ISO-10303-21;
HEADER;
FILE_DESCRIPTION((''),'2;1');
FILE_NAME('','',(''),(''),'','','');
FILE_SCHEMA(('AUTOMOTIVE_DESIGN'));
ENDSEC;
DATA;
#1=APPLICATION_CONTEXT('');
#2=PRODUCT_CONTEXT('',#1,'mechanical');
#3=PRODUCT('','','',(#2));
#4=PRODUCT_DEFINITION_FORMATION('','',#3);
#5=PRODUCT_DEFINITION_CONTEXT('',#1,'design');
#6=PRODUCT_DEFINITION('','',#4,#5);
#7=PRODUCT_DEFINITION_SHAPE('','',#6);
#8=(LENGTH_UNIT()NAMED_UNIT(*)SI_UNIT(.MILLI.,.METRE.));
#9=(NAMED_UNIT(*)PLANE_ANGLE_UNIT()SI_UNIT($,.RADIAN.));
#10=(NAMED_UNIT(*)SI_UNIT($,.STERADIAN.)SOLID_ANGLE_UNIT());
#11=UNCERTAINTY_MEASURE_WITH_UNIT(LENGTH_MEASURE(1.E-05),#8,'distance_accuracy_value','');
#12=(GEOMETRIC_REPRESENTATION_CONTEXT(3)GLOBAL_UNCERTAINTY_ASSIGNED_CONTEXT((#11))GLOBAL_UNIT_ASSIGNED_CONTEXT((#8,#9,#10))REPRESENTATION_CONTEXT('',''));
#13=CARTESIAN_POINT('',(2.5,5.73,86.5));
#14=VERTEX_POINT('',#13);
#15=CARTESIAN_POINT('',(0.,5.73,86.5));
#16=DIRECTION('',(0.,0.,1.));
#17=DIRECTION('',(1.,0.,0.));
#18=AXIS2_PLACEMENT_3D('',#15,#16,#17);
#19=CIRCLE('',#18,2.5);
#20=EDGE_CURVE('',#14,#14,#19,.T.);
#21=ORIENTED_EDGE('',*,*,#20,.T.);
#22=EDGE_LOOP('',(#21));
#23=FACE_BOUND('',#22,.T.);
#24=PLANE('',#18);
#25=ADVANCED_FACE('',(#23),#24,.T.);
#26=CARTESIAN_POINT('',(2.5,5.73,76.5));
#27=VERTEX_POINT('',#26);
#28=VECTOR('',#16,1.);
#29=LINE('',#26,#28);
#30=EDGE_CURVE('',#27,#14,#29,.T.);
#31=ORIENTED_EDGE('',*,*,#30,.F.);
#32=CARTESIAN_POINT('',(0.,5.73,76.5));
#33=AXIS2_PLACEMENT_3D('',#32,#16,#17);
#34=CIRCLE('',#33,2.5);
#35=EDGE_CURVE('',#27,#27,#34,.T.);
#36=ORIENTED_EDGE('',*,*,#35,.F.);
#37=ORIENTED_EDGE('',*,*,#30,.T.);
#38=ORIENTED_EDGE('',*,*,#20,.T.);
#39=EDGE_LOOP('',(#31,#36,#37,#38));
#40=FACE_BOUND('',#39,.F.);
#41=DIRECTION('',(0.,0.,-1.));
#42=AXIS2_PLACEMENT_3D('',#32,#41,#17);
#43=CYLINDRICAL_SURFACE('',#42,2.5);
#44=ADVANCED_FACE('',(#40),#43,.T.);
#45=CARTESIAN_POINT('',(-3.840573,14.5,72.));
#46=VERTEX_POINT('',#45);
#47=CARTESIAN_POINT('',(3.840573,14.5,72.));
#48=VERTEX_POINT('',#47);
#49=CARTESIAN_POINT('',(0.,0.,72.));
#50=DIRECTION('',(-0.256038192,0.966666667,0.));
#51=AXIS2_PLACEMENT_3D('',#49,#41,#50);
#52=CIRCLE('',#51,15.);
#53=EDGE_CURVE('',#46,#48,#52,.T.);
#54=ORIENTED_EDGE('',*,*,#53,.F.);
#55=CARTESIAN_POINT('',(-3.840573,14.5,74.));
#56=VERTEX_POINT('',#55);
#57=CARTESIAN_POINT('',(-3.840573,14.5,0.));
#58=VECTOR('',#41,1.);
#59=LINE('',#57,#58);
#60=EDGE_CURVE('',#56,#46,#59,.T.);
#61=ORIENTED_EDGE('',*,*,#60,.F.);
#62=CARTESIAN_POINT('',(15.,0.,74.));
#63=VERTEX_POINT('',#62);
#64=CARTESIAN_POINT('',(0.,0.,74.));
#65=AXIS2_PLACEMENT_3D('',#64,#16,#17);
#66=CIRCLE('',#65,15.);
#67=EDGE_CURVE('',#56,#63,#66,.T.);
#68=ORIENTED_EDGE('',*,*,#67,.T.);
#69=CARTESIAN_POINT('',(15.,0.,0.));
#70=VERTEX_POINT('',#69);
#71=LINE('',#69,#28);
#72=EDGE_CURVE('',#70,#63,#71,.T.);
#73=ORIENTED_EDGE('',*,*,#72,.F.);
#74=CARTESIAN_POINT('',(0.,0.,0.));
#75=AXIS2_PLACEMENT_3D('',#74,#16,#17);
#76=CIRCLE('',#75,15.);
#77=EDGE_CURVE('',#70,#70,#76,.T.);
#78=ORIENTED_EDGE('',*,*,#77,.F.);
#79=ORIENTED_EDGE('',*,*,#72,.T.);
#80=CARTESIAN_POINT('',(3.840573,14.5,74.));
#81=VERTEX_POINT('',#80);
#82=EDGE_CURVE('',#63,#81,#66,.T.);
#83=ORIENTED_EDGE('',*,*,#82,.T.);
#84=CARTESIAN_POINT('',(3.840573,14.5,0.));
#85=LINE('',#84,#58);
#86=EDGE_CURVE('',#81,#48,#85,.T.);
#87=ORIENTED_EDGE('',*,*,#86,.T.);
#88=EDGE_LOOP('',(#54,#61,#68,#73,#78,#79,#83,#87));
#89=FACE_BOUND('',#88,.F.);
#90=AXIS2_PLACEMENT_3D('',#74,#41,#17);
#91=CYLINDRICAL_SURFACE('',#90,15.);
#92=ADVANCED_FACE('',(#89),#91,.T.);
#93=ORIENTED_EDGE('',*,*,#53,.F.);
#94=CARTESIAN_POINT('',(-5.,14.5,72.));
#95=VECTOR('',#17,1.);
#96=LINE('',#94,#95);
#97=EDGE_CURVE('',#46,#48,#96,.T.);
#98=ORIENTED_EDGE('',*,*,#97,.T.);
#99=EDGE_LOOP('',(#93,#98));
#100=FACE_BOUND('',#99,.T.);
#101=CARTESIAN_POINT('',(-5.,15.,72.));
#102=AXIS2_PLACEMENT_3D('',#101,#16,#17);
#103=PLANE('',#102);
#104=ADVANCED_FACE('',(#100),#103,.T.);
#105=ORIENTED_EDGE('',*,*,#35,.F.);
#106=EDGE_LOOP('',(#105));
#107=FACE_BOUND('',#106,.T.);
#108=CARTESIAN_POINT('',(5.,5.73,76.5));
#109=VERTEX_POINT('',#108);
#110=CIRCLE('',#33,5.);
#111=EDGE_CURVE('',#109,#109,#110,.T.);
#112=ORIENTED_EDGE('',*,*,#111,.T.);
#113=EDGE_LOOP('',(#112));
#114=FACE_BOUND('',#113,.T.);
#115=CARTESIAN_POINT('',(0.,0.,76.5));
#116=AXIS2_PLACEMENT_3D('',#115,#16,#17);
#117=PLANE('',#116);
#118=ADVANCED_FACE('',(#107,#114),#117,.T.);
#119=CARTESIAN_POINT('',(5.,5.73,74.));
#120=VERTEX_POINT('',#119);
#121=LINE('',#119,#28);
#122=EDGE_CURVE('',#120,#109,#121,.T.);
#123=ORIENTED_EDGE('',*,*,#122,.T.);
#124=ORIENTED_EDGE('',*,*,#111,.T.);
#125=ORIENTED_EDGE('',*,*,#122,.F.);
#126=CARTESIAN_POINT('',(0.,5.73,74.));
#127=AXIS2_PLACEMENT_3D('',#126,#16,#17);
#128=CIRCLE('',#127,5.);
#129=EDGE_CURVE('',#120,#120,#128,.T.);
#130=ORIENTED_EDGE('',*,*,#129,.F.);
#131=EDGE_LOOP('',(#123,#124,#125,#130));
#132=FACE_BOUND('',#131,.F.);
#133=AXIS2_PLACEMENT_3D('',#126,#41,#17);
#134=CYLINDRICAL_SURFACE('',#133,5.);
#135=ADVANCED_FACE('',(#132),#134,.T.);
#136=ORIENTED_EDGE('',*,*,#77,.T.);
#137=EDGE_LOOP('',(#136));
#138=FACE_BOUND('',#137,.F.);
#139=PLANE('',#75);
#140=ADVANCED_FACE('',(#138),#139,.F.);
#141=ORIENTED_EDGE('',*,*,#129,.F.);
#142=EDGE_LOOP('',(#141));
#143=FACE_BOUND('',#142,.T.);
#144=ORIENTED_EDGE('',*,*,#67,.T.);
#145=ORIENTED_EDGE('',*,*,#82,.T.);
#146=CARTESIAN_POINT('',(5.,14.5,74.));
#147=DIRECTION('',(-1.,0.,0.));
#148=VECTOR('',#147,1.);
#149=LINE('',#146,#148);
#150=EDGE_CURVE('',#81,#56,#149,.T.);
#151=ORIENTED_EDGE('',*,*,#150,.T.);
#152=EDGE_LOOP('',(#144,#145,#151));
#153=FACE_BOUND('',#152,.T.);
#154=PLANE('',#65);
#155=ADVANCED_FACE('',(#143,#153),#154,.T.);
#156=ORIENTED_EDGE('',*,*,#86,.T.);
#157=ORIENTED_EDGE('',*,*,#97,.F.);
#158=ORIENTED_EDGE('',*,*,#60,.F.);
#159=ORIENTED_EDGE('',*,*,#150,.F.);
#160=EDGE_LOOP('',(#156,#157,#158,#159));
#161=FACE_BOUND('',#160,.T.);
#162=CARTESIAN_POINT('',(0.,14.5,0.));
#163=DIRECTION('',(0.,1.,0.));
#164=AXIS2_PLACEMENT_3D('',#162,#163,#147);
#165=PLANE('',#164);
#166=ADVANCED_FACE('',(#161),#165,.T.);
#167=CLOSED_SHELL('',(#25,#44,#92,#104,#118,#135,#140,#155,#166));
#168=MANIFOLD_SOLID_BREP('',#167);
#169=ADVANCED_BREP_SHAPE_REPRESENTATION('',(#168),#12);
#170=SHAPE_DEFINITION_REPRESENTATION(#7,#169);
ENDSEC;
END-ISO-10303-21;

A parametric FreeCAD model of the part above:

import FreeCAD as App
import Part
import Sketcher
from FreeCAD import Vector
Q = App.Units.Quantity

doc = App.newDocument("Part")
body = doc.addObject("PartDesign::Body", "Body")

# Sketch on XY plane
sketch1 = body.newObject("Sketcher::SketchObject", "Sketch")
sketch1.AttachmentSupport = (doc.getObject("XY_Plane"), [""])
sketch1.MapMode = "FlatFace"
sketch1.addGeometry(Part.Circle(Vector(0, 0, 0), Vector(0, 0, 1), 15), False)
sketch1.addConstraint(Sketcher.Constraint("Coincident", 0, 3, -1, 1))
sketch1.addConstraint(Sketcher.Constraint("Diameter", 0, Q("30 mm")))
pad1 = body.newObject("PartDesign::Pad", "Pad")
pad1.Profile = sketch1
pad1.Length = 74

# Sketch on XY plane
sketch2 = body.newObject("Sketcher::SketchObject", "Sketch001")
sketch2.AttachmentSupport = (doc.getObject("XY_Plane"), [""])
sketch2.MapMode = "FlatFace"
sketch2.AttachmentOffset = App.Placement(Vector(0, 0, 74), App.Rotation())
sketch2.addGeometry(Part.Circle(Vector(0, 5.73, 0), Vector(0, 0, 1), 5), False)
sketch2.addConstraint(Sketcher.Constraint("PointOnObject", 0, 3, -2))
sketch2.addConstraint(Sketcher.Constraint("Diameter", 0, Q("10 mm")))
sketch2.addConstraint(Sketcher.Constraint("DistanceY", -1, 1, 0, 3, Q("5.73 mm")))
pad2 = body.newObject("PartDesign::Pad", "Pad001")
pad2.Profile = sketch2
pad2.Length = 2.5

# Sketch on XY plane
sketch3 = body.newObject("Sketcher::SketchObject", "Sketch002")
sketch3.AttachmentSupport = (doc.getObject("XY_Plane"), [""])
sketch3.MapMode = "FlatFace"
sketch3.AttachmentOffset = App.Placement(Vector(0, 0, 76.5), App.Rotation())
sketch3.addGeometry(Part.Circle(Vector(0, 5.73, 0), Vector(0, 0, 1), 2.5), False)
sketch3.addConstraint(Sketcher.Constraint("PointOnObject", 0, 3, -2))
sketch3.addConstraint(Sketcher.Constraint("Diameter", 0, Q("5 mm")))
sketch3.addConstraint(Sketcher.Constraint("DistanceY", -1, 1, 0, 3, Q("5.73 mm")))
pad3 = body.newObject("PartDesign::Pad", "Pad002")
pad3.Profile = sketch3
pad3.Length = 10

# Sketch on XZ plane
sketch4 = body.newObject("Sketcher::SketchObject", "Sketch003")
sketch4.AttachmentSupport = (doc.getObject("XZ_Plane"), [""])
sketch4.MapMode = "FlatFace"
sketch4.AttachmentOffset = App.Placement(Vector(0, 0, -15), App.Rotation())
sketch4.addGeometry(Part.LineSegment(Vector(-5, 74, 0), Vector(5, 74, 0)), False)
sketch4.addGeometry(Part.LineSegment(Vector(5, 74, 0), Vector(5, 72, 0)), False)
sketch4.addGeometry(Part.LineSegment(Vector(5, 72, 0), Vector(-5, 72, 0)), False)
sketch4.addGeometry(Part.LineSegment(Vector(-5, 72, 0), Vector(-5, 74, 0)), False)
sketch4.addConstraint(Sketcher.Constraint("Coincident", 0, 2, 1, 1))
sketch4.addConstraint(Sketcher.Constraint("Coincident", 1, 2, 2, 1))
sketch4.addConstraint(Sketcher.Constraint("Coincident", 2, 2, 3, 1))
sketch4.addConstraint(Sketcher.Constraint("Coincident", 3, 2, 0, 1))
sketch4.addConstraint(Sketcher.Constraint("Horizontal", 0))
sketch4.addConstraint(Sketcher.Constraint("Vertical", 1))
sketch4.addConstraint(Sketcher.Constraint("Horizontal", 2))
sketch4.addConstraint(Sketcher.Constraint("Vertical", 3))
sketch4.addConstraint(Sketcher.Constraint("DistanceX", 0, 1, 0, 2, Q("10 mm")))
sketch4.addConstraint(Sketcher.Constraint("DistanceY", 1, 2, 1, 1, Q("2 mm")))
sketch4.addConstraint(Sketcher.Constraint("DistanceX", -1, 1, 0, 2, Q("5 mm")))
sketch4.addConstraint(Sketcher.Constraint("DistanceY", -1, 1, 0, 2, Q("74 mm")))
pocket1 = body.newObject("PartDesign::Pocket", "Pocket")
pocket1.Profile = sketch4
pocket1.Length = 0.5
pocket1.Reversed = True

doc.recompute()
